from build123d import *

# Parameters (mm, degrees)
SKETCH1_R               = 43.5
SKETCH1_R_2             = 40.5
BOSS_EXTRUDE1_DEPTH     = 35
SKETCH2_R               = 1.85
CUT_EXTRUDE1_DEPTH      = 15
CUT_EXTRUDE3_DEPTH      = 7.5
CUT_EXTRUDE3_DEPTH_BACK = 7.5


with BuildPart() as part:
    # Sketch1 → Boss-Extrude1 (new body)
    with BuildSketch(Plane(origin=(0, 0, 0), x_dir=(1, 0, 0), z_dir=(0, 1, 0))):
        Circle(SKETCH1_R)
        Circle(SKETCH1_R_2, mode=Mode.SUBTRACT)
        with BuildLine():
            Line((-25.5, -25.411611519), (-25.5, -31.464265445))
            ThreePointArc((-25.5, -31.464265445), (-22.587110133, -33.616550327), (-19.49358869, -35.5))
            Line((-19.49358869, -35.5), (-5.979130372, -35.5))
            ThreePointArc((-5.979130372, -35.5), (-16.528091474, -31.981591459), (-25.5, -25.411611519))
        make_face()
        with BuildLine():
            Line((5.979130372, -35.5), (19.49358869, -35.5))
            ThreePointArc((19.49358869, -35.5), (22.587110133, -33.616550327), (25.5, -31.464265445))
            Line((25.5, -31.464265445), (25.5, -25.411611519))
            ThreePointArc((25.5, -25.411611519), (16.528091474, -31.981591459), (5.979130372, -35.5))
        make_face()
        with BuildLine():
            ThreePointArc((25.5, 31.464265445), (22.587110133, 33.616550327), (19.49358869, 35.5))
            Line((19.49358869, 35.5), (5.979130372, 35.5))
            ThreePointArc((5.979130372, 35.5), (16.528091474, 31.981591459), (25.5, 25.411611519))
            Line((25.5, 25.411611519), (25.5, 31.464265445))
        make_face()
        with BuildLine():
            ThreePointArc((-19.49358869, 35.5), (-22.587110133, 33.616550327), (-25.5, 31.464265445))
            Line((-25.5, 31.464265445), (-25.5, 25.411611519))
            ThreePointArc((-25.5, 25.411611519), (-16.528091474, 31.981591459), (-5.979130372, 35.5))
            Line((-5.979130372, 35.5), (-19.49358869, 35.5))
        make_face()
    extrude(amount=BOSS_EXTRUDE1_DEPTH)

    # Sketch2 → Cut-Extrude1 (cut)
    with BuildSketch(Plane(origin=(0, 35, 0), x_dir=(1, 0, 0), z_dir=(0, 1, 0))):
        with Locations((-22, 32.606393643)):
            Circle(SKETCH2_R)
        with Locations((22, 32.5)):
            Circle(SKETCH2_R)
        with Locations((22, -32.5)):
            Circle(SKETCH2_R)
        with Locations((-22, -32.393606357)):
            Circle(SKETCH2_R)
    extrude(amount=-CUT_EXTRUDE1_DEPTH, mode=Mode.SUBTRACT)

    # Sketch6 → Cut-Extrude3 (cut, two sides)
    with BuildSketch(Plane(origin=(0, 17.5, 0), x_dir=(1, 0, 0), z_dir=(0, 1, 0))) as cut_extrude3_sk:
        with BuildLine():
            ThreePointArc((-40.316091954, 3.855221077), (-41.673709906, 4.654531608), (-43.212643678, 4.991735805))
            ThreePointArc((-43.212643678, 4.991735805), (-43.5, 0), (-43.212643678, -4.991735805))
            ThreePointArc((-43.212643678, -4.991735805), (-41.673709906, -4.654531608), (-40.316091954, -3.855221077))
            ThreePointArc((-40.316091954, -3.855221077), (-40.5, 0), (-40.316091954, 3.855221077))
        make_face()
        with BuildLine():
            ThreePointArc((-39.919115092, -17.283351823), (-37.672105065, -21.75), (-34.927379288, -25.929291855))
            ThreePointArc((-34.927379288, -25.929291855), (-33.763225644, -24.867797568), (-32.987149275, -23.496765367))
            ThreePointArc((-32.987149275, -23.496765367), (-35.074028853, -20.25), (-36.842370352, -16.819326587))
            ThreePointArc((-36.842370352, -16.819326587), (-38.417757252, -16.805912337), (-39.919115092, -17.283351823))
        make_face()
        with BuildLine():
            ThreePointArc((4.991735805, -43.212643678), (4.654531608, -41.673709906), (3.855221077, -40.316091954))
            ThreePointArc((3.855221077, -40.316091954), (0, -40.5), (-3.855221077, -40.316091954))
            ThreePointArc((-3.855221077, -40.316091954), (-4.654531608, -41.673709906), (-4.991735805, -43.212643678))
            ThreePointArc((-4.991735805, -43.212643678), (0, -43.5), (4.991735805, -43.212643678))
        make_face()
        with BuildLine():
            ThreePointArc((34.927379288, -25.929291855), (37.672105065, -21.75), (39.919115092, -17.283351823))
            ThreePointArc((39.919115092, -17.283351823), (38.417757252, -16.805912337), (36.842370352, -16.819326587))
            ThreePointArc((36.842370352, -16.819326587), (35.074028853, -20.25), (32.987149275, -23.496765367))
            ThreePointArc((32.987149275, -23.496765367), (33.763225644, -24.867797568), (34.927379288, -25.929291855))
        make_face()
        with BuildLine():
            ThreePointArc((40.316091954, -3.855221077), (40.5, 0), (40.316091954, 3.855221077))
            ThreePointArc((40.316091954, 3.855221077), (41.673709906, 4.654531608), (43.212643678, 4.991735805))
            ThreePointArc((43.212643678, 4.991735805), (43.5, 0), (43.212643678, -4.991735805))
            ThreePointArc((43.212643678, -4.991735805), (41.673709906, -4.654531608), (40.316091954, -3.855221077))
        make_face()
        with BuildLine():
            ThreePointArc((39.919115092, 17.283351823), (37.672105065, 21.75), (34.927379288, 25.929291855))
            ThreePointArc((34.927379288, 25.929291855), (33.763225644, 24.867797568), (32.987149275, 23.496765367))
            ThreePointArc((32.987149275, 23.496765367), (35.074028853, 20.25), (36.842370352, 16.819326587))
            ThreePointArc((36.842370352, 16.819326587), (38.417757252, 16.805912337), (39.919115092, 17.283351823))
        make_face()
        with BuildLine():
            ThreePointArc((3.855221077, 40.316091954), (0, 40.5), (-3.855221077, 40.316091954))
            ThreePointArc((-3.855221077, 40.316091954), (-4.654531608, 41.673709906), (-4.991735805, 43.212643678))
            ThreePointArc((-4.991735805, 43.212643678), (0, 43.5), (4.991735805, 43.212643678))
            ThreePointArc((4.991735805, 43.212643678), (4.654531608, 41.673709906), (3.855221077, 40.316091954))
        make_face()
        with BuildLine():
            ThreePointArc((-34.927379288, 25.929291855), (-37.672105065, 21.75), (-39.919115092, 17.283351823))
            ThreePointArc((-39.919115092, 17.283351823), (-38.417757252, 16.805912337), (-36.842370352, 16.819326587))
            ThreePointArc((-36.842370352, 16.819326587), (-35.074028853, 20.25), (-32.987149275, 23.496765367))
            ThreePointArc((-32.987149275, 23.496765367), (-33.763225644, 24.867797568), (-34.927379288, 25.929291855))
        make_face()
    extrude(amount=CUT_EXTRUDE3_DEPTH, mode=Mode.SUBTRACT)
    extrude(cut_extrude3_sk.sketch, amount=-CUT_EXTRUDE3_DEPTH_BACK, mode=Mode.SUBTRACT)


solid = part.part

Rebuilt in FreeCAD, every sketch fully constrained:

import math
import FreeCAD as App
import Part
import Sketcher

doc = App.newDocument("Part")
body = doc.addObject("PartDesign::Body", "Body")

# Sketch on XZ plane
sketch1 = body.newObject("Sketcher::SketchObject", "Sketch")
sketch1.AttachmentSupport = (doc.getObject("XZ_Plane"), [""])
sketch1.MapMode = "FlatFace"
sketch1.addGeometry([
    Part.Circle(App.Vector(0, 0, 0), App.Vector(0, 0, 1), 44),  # 0
    Part.ArcOfCircle(Part.Circle(App.Vector(0, 0, 0), App.Vector(0, 0, 1), 40), math.radians(129), math.radians(231)),  # 1
    Part.LineSegment(App.Vector(-26, -31, 0), App.Vector(-26, -25, 0)),  # 2
    Part.ArcOfCircle(Part.Circle(App.Vector(0, 0, 0), App.Vector(0, 0, 1), 36), math.radians(-135), math.radians(-100)),  # 3
    Part.LineSegment(App.Vector(-6, -36, 0), App.Vector(-19, -36, 0)),  # 4
    Part.ArcOfCircle(Part.Circle(App.Vector(0, 0, 0), App.Vector(0, 0, 1), 40), math.radians(-119), math.radians(-61)),  # 5
    Part.LineSegment(App.Vector(19, -36, 0), App.Vector(6, -36, 0)),  # 6
    Part.ArcOfCircle(Part.Circle(App.Vector(0, 0, 0), App.Vector(0, 0, 1), 36), math.radians(-80), math.radians(-45)),  # 7
    Part.LineSegment(App.Vector(26, -25, 0), App.Vector(26, -31, 0)),  # 8
    Part.ArcOfCircle(Part.Circle(App.Vector(0, 0, 0), App.Vector(0, 0, 1), 40), math.radians(-51), math.radians(51)),  # 9
    Part.LineSegment(App.Vector(26, 31, 0), App.Vector(26, 25, 0)),  # 10
    Part.ArcOfCircle(Part.Circle(App.Vector(0, 0, 0), App.Vector(0, 0, 1), 36), math.radians(45), math.radians(80)),  # 11
    Part.LineSegment(App.Vector(6, 36, 0), App.Vector(19, 36, 0)),  # 12
    Part.ArcOfCircle(Part.Circle(App.Vector(0, 0, 0), App.Vector(0, 0, 1), 40), math.radians(61), math.radians(119)),  # 13
    Part.LineSegment(App.Vector(-19, 36, 0), App.Vector(-6, 36, 0)),  # 14
    Part.ArcOfCircle(Part.Circle(App.Vector(0, 0, 0), App.Vector(0, 0, 1), 36), math.radians(100), math.radians(135)),  # 15
    Part.LineSegment(App.Vector(-26, 25, 0), App.Vector(-26, 31, 0)),  # 16
], False)
sketch1.addConstraint([
    Sketcher.Constraint("Coincident", 1, 2, 2, 1),
    Sketcher.Constraint("Coincident", 2, 2, 3, 1),
    Sketcher.Constraint("Coincident", 3, 2, 4, 1),
    Sketcher.Constraint("Coincident", 4, 2, 5, 1),
    Sketcher.Constraint("Coincident", 5, 2, 6, 1),
    Sketcher.Constraint("Coincident", 6, 2, 7, 1),
    Sketcher.Constraint("Coincident", 7, 2, 8, 1),
    Sketcher.Constraint("Coincident", 8, 2, 9, 1),
    Sketcher.Constraint("Coincident", 9, 2, 10, 1),
    Sketcher.Constraint("Coincident", 10, 2, 11, 1),
    Sketcher.Constraint("Coincident", 11, 2, 12, 1),
    Sketcher.Constraint("Coincident", 12, 2, 13, 1),
    Sketcher.Constraint("Coincident", 13, 2, 14, 1),
    Sketcher.Constraint("Coincident", 14, 2, 15, 1),
    Sketcher.Constraint("Coincident", 15, 2, 16, 1),
    Sketcher.Constraint("Coincident", 16, 2, 1, 1),
    Sketcher.Constraint("Vertical", 2),
    Sketcher.Constraint("Horizontal", 4),
    Sketcher.Constraint("Horizontal", 6),
    Sketcher.Constraint("Vertical", 8),
    Sketcher.Constraint("Vertical", 10),
    Sketcher.Constraint("Horizontal", 12),
    Sketcher.Constraint("Horizontal", 14),
    Sketcher.Constraint("Vertical", 16),
    Sketcher.Constraint("Coincident", 0, 3, -1, 1),
    Sketcher.Constraint("Coincident", 1, 3, -1, 1),
    Sketcher.Constraint("Coincident", 3, 3, -1, 1),
    Sketcher.Constraint("Coincident", 5, 3, -1, 1),
    Sketcher.Constraint("Coincident", 7, 3, -1, 1),
    Sketcher.Constraint("Coincident", 9, 3, -1, 1),
    Sketcher.Constraint("Coincident", 11, 3, -1, 1),
    Sketcher.Constraint("Coincident", 13, 3, -1, 1),
    Sketcher.Constraint("Coincident", 15, 3, -1, 1),
    Sketcher.Constraint("Equal", 1, 5),
    Sketcher.Constraint("Equal", 3, 7),
    Sketcher.Constraint("Equal", 5, 9),
    Sketcher.Constraint("Equal", 7, 11),
    Sketcher.Constraint("Equal", 9, 13),
    Sketcher.Constraint("Equal", 11, 15),
    Sketcher.Constraint("Horizontal", 4, 2, 5, 2),
    Sketcher.Constraint("Horizontal", 2, 2, 7, 2),
    Sketcher.Constraint("Horizontal", 12, 2, 13, 2),
    Sketcher.Constraint("Horizontal", 10, 2, 15, 2),
    Sketcher.Constraint("Vertical", 8, 2, 9, 2),
    Sketcher.Constraint("Vertical", 6, 2, 11, 2),
    Sketcher.Constraint("Diameter", 0, 87.0),
    Sketcher.Constraint("Radius", 3, 36.0),
    Sketcher.Constraint("Radius", 1, 40.5),
    Sketcher.Constraint("DistanceX", 1, 2, -1, 1, 25.5),
    Sketcher.Constraint("DistanceY", 3, 2, -1, 1, 35.5),
])
pad1 = body.newObject("PartDesign::Pad", "Pad")
pad1.Profile = sketch1
pad1.Length = 35
pad1.Reversed = True

# Sketch on XZ plane
sketch2 = body.newObject("Sketcher::SketchObject", "Sketch001")
sketch2.AttachmentSupport = (doc.getObject("XZ_Plane"), [""])
sketch2.MapMode = "FlatFace"
sketch2.AttachmentOffset = App.Placement(App.Vector(0, 0, -35), App.Rotation())
sketch2.addGeometry([
    Part.Circle(App.Vector(-22, -32.6, 0), App.Vector(0, 0, 1), 1.9),
    Part.Circle(App.Vector(22, -32.5, 0), App.Vector(0, 0, 1), 1.9),
    Part.Circle(App.Vector(22, 32.5, 0), App.Vector(0, 0, 1), 1.9),
    Part.Circle(App.Vector(-22, 32.4, 0), App.Vector(0, 0, 1), 1.9),
], False)
sketch2.addConstraint([
    Sketcher.Constraint("Equal", 0, 1),
    Sketcher.Constraint("Equal", 1, 2),
    Sketcher.Constraint("Equal", 2, 3),
    Sketcher.Constraint("Symmetric", 1, 3, 2, 3, -1),
    Sketcher.Constraint("Vertical", 0, 3, 3, 3),
    Sketcher.Constraint("Diameter", 0, 3.7),
    Sketcher.Constraint("DistanceX", 0, 3, -1, 1, 22.0),
    Sketcher.Constraint("DistanceX", -1, 1, 1, 3, 22.0),
    Sketcher.Constraint("DistanceY", 1, 3, 2, 3, 65.0),
    Sketcher.Constraint("DistanceY", 0, 3, 3, 3, 65.0),
    Sketcher.Constraint("DistanceY", 0, 3, -1, 1, 32.606394),
])
pocket1 = body.newObject("PartDesign::Pocket", "Pocket")
pocket1.Profile = sketch2
pocket1.Length = 15
pocket1.Reversed = True

# Sketch on XZ plane
sketch3 = body.newObject("Sketcher::SketchObject", "Sketch002")
sketch3.AttachmentSupport = (doc.getObject("XZ_Plane"), [""])
sketch3.MapMode = "FlatFace"
sketch3.AttachmentOffset = App.Placement(App.Vector(0, 0, -17.5), App.Rotation())
sketch3.addGeometry([
    Part.ArcOfCircle(Part.Circle(App.Vector(-43.5, 0, 0), App.Vector(0, 0, 1), 5), math.radians(-87), math.radians(-50)),  # 0
    Part.ArcOfCircle(Part.Circle(App.Vector(0, 0, 0), App.Vector(0, 0, 1), 43.5), math.radians(173.41), math.radians(186.59)),  # 1
    Part.ArcOfCircle(Part.Circle(App.Vector(-43.5, 0, 0), App.Vector(0, 0, 1), 5), math.radians(50), math.radians(87)),  # 2
    Part.ArcOfCircle(Part.Circle(App.Vector(0, 0, 0), App.Vector(0, 0, 1), 40.5), math.radians(174.54), math.radians(185.46)),  # 3
    Part.ArcOfCircle(Part.Circle(App.Vector(0, 0, 0), App.Vector(0, 0, 1), 43.5), math.radians(143.41), math.radians(156.59)),  # 4
    Part.ArcOfCircle(Part.Circle(App.Vector(-37.7, 21.8, 0), App.Vector(0, 0, 1), 5), math.radians(20), math.radians(57)),  # 5
    Part.ArcOfCircle(Part.Circle(App.Vector(0, 0, 0), App.Vector(0, 0, 1), 40.5), math.radians(144.54), math.radians(155.46)),  # 6
    Part.ArcOfCircle(Part.Circle(App.Vector(-37.7, 21.7, 0), App.Vector(0, 0, 1), 5), math.radians(-117), math.radians(-80)),  # 7
    Part.ArcOfCircle(Part.Circle(App.Vector(0, 43.5, 0), App.Vector(0, 0, 1), 5), math.radians(-40), math.radians(-3)),  # 8
    Part.ArcOfCircle(Part.Circle(App.Vector(0, 0, 0), App.Vector(0, 0, 1), 40.5), math.radians(84.54), math.radians(95.46)),  # 9
    Part.ArcOfCircle(Part.Circle(App.Vector(0, 43.5, 0), App.Vector(0, 0, 1), 5), math.radians(-177), math.radians(-140)),  # 10
    Part.ArcOfCircle(Part.Circle(App.Vector(0, 0, 0), App.Vector(0, 0, 1), 43.5), math.radians(83.41), math.radians(96.59)),  # 11
    Part.ArcOfCircle(Part.Circle(App.Vector(0, 0, 0), App.Vector(0, 0, 1), 43.5), math.radians(23.41), math.radians(36.59)),  # 12
    Part.ArcOfCircle(Part.Circle(App.Vector(37.7, 21.7, 0), App.Vector(0, 0, 1), 5), math.radians(-100), math.radians(-63)),  # 13
    Part.ArcOfCircle(Part.Circle(App.Vector(0, 0, 0), App.Vector(0, 0, 1), 40.5), math.radians(24.54), math.radians(35.46)),  # 14
    Part.ArcOfCircle(Part.Circle(App.Vector(37.7, 21.8, 0), App.Vector(0, 0, 1), 5), math.radians(123), math.radians(160)),  # 15
    Part.ArcOfCircle(Part.Circle(App.Vector(0, 0, 0), App.Vector(0, 0, 1), 40.5), math.radians(-5.46), math.radians(5.46)),  # 16
    Part.ArcOfCircle(Part.Circle(App.Vector(43.5, 0, 0), App.Vector(0, 0, 1), 5), math.radians(93), math.radians(130)),  # 17
    Part.ArcOfCircle(Part.Circle(App.Vector(0, 0, 0), App.Vector(0, 0, 1), 43.5), math.radians(-6.59), math.radians(6.59)),  # 18
    Part.ArcOfCircle(Part.Circle(App.Vector(43.5, 0, 0), App.Vector(0, 0, 1), 5), math.radians(-130), math.radians(-93)),  # 19
    Part.ArcOfCircle(Part.Circle(App.Vector(0, 0, 0), App.Vector(0, 0, 1), 43.5), math.radians(-36.59), math.radians(-23.41)),  # 20
    Part.ArcOfCircle(Part.Circle(App.Vector(37.7, -21.8, 0), App.Vector(0, 0, 1), 5), math.radians(-160), math.radians(-123)),  # 21
    Part.ArcOfCircle(Part.Circle(App.Vector(0, 0, 0), App.Vector(0, 0, 1), 40.5), math.radians(-35.46), math.radians(-24.54)),  # 22
    Part.ArcOfCircle(Part.Circle(App.Vector(37.7, -21.7, 0), App.Vector(0, 0, 1), 5), math.radians(63), math.radians(100)),  # 23
    Part.ArcOfCircle(Part.Circle(App.Vector(0, 0, 0), App.Vector(0, 0, 1), 40.5), math.radians(-95.46), math.radians(-84.54)),  # 24
    Part.ArcOfCircle(Part.Circle(App.Vector(0, -43.5, 0), App.Vector(0, 0, 1), 5), math.radians(3), math.radians(40)),  # 25
    Part.ArcOfCircle(Part.Circle(App.Vector(0, 0, 0), App.Vector(0, 0, 1), 43.5), math.radians(-96.59), math.radians(-83.41)),  # 26
    Part.ArcOfCircle(Part.Circle(App.Vector(0, -43.5, 0), App.Vector(0, 0, 1), 5), math.radians(140), math.radians(177)),  # 27
    Part.ArcOfCircle(Part.Circle(App.Vector(0, 0, 0), App.Vector(0, 0, 1), 43.5), math.radians(-156.59), math.radians(-143.41)),  # 28
    Part.ArcOfCircle(Part.Circle(App.Vector(-37.7, -21.7, 0), App.Vector(0, 0, 1), 5), math.radians(80), math.radians(117)),  # 29
    Part.ArcOfCircle(Part.Circle(App.Vector(0, 0, 0), App.Vector(0, 0, 1), 40.5), math.radians(-155.46), math.radians(-144.54)),  # 30
    Part.ArcOfCircle(Part.Circle(App.Vector(-37.7, -21.8, 0), App.Vector(0, 0, 1), 5), math.radians(-57), math.radians(-20)),  # 31
], False)
sketch3.addConstraint([
    Sketcher.Constraint("Coincident", 0, 1, 1, 2),
    Sketcher.Constraint("Coincident", 1, 1, 2, 2),
    Sketcher.Constraint("Coincident", 2, 1, 3, 1),
    Sketcher.Constraint("Coincident", 3, 2, 0, 2),
    Sketcher.Constraint("Coincident", 4, 1, 5, 2),
    Sketcher.Constraint("Coincident", 5, 1, 6, 1),
    Sketcher.Constraint("Coincident", 6, 2, 7, 2),
    Sketcher.Constraint("Coincident", 7, 1, 4, 2),
    Sketcher.Constraint("Coincident", 8, 1, 9, 1),
    Sketcher.Constraint("Coincident", 9, 2, 10, 2),
    Sketcher.Constraint("Coincident", 10, 1, 11, 2),
    Sketcher.Constraint("Coincident", 11, 1, 8, 2),
    Sketcher.Constraint("Coincident", 12, 1, 13, 2),
    Sketcher.Constraint("Coincident", 13, 1, 14, 1),
    Sketcher.Constraint("Coincident", 14, 2, 15, 2),
    Sketcher.Constraint("Coincident", 15, 1, 12, 2),
    Sketcher.Constraint("Coincident", 16, 2, 17, 2),
    Sketcher.Constraint("Coincident", 17, 1, 18, 2),
    Sketcher.Constraint("Coincident", 18, 1, 19, 2),
    Sketcher.Constraint("Coincident", 19, 1, 16, 1),
    Sketcher.Constraint("Coincident", 20, 1, 21, 2),
    Sketcher.Constraint("Coincident", 21, 1, 22, 1),
    Sketcher.Constraint("Coincident", 22, 2, 23, 2),
    Sketcher.Constraint("Coincident", 23, 1, 20, 2),
    Sketcher.Constraint("Coincident", 24, 2, 25, 2),
    Sketcher.Constraint("Coincident", 25, 1, 26, 2),
    Sketcher.Constraint("Coincident", 26, 1, 27, 2),
    Sketcher.Constraint("Coincident", 27, 1, 24, 1),
    Sketcher.Constraint("Coincident", 28, 1, 29, 2),
    Sketcher.Constraint("Coincident", 29, 1, 30, 1),
    Sketcher.Constraint("Coincident", 30, 2, 31, 2),
    Sketcher.Constraint("Coincident", 31, 1, 28, 2),
    Sketcher.Constraint("Coincident", 1, 3, -1, 1),
    Sketcher.Constraint("Coincident", 3, 3, -1, 1),
    Sketcher.Constraint("Coincident", 4, 3, -1, 1),
    Sketcher.Constraint("Coincident", 6, 3, -1, 1),
    Sketcher.Constraint("Coincident", 9, 3, -1, 1),
    Sketcher.Constraint("Coincident", 11, 3, -1, 1),
    Sketcher.Constraint("Coincident", 12, 3, -1, 1),
    Sketcher.Constraint("Coincident", 14, 3, -1, 1),
    Sketcher.Constraint("Coincident", 16, 3, -1, 1),
    Sketcher.Constraint("Coincident", 18, 3, -1, 1),
    Sketcher.Constraint("Coincident", 20, 3, -1, 1),
    Sketcher.Constraint("Coincident", 22, 3, -1, 1),
    Sketcher.Constraint("Coincident", 24, 3, -1, 1),
    Sketcher.Constraint("Coincident", 26, 3, -1, 1),
    Sketcher.Constraint("Coincident", 28, 3, -1, 1),
    Sketcher.Constraint("Coincident", 30, 3, -1, 1),
    Sketcher.Constraint("Coincident", 2, 3, 0, 3),
    Sketcher.Constraint("Coincident", 7, 3, 5, 3),
    Sketcher.Constraint("Coincident", 10, 3, 8, 3),
    Sketcher.Constraint("Coincident", 15, 3, 13, 3),
    Sketcher.Constraint("Coincident", 19, 3, 17, 3),
    Sketcher.Constraint("Coincident", 23, 3, 21, 3),
    Sketcher.Constraint("Coincident", 27, 3, 25, 3),
    Sketcher.Constraint("Coincident", 31, 3, 29, 3),
    Sketcher.Constraint("Equal", 0, 2),
    Sketcher.Constraint("Equal", 1, 4),
    Sketcher.Constraint("Equal", 2, 5),
    Sketcher.Constraint("Equal", 3, 6),
    Sketcher.Constraint("Equal", 5, 7),
    Sketcher.Constraint("Equal", 7, 8),
    Sketcher.Constraint("Equal", 6, 9),
    Sketcher.Constraint("Equal", 8, 10),
    Sketcher.Constraint("Equal", 4, 11),
    Sketcher.Constraint("Equal", 11, 12),
    Sketcher.Constraint("Equal", 10, 13),
    Sketcher.Constraint("Equal", 9, 14),
    Sketcher.Constraint("Equal", 13, 15),
    Sketcher.Constraint("Equal", 14, 16),
    Sketcher.Constraint("Equal", 15, 17),
    Sketcher.Constraint("Equal", 12, 18),
    Sketcher.Constraint("Equal", 17, 19),
    Sketcher.Constraint("Equal", 18, 20),
    Sketcher.Constraint("Equal", 19, 21),
    Sketcher.Constraint("Equal", 16, 22),
    Sketcher.Constraint("Equal", 21, 23),
    Sketcher.Constraint("Equal", 22, 24),
    Sketcher.Constraint("Equal", 23, 25),
    Sketcher.Constraint("Equal", 20, 26),
    Sketcher.Constraint("Equal", 25, 27),
    Sketcher.Constraint("Equal", 26, 28),
    Sketcher.Constraint("Equal", 27, 29),
    Sketcher.Constraint("Equal", 24, 30),
    Sketcher.Constraint("Equal", 29, 31),
    Sketcher.Constraint("Symmetric", 0, 3, 17, 3, -1, 1),
    Sketcher.Constraint("Symmetric", 5, 3, 21, 3, -1, 1),
    Sketcher.Constraint("Symmetric", 8, 3, 25, 3, -1, 1),
    Sketcher.Constraint("Symmetric", 13, 3, 29, 3, -1, 1),
    Sketcher.Constraint("Symmetric", 5, 3, 13, 3, -2),
    Sketcher.Constraint("PointOnObject", 0, 3, -1),
    Sketcher.Constraint("PointOnObject", 8, 3, -2),
    Sketcher.Constraint("Radius", 0, 5.0),
    Sketcher.Constraint("Radius", 1, 43.5),
    Sketcher.Constraint("Radius", 3, 40.5),
    Sketcher.Constraint("DistanceX", 0, 3, -1, 1, 43.5),
    Sketcher.Constraint("DistanceY", -1, 1, 8, 3, 43.5),
    Sketcher.Constraint("DistanceY", -1, 1, 5, 3, 21.75),
    Sketcher.Constraint("DistanceX", 4, 1, -1, 1, 34.927379),
])
pocket2 = body.newObject("PartDesign::Pocket", "Pocket001")
pocket2.Profile = sketch3
pocket2.Type = "TwoLengths"
pocket2.Length = 7.5
pocket2.Length2 = 7.5

doc.recompute()
